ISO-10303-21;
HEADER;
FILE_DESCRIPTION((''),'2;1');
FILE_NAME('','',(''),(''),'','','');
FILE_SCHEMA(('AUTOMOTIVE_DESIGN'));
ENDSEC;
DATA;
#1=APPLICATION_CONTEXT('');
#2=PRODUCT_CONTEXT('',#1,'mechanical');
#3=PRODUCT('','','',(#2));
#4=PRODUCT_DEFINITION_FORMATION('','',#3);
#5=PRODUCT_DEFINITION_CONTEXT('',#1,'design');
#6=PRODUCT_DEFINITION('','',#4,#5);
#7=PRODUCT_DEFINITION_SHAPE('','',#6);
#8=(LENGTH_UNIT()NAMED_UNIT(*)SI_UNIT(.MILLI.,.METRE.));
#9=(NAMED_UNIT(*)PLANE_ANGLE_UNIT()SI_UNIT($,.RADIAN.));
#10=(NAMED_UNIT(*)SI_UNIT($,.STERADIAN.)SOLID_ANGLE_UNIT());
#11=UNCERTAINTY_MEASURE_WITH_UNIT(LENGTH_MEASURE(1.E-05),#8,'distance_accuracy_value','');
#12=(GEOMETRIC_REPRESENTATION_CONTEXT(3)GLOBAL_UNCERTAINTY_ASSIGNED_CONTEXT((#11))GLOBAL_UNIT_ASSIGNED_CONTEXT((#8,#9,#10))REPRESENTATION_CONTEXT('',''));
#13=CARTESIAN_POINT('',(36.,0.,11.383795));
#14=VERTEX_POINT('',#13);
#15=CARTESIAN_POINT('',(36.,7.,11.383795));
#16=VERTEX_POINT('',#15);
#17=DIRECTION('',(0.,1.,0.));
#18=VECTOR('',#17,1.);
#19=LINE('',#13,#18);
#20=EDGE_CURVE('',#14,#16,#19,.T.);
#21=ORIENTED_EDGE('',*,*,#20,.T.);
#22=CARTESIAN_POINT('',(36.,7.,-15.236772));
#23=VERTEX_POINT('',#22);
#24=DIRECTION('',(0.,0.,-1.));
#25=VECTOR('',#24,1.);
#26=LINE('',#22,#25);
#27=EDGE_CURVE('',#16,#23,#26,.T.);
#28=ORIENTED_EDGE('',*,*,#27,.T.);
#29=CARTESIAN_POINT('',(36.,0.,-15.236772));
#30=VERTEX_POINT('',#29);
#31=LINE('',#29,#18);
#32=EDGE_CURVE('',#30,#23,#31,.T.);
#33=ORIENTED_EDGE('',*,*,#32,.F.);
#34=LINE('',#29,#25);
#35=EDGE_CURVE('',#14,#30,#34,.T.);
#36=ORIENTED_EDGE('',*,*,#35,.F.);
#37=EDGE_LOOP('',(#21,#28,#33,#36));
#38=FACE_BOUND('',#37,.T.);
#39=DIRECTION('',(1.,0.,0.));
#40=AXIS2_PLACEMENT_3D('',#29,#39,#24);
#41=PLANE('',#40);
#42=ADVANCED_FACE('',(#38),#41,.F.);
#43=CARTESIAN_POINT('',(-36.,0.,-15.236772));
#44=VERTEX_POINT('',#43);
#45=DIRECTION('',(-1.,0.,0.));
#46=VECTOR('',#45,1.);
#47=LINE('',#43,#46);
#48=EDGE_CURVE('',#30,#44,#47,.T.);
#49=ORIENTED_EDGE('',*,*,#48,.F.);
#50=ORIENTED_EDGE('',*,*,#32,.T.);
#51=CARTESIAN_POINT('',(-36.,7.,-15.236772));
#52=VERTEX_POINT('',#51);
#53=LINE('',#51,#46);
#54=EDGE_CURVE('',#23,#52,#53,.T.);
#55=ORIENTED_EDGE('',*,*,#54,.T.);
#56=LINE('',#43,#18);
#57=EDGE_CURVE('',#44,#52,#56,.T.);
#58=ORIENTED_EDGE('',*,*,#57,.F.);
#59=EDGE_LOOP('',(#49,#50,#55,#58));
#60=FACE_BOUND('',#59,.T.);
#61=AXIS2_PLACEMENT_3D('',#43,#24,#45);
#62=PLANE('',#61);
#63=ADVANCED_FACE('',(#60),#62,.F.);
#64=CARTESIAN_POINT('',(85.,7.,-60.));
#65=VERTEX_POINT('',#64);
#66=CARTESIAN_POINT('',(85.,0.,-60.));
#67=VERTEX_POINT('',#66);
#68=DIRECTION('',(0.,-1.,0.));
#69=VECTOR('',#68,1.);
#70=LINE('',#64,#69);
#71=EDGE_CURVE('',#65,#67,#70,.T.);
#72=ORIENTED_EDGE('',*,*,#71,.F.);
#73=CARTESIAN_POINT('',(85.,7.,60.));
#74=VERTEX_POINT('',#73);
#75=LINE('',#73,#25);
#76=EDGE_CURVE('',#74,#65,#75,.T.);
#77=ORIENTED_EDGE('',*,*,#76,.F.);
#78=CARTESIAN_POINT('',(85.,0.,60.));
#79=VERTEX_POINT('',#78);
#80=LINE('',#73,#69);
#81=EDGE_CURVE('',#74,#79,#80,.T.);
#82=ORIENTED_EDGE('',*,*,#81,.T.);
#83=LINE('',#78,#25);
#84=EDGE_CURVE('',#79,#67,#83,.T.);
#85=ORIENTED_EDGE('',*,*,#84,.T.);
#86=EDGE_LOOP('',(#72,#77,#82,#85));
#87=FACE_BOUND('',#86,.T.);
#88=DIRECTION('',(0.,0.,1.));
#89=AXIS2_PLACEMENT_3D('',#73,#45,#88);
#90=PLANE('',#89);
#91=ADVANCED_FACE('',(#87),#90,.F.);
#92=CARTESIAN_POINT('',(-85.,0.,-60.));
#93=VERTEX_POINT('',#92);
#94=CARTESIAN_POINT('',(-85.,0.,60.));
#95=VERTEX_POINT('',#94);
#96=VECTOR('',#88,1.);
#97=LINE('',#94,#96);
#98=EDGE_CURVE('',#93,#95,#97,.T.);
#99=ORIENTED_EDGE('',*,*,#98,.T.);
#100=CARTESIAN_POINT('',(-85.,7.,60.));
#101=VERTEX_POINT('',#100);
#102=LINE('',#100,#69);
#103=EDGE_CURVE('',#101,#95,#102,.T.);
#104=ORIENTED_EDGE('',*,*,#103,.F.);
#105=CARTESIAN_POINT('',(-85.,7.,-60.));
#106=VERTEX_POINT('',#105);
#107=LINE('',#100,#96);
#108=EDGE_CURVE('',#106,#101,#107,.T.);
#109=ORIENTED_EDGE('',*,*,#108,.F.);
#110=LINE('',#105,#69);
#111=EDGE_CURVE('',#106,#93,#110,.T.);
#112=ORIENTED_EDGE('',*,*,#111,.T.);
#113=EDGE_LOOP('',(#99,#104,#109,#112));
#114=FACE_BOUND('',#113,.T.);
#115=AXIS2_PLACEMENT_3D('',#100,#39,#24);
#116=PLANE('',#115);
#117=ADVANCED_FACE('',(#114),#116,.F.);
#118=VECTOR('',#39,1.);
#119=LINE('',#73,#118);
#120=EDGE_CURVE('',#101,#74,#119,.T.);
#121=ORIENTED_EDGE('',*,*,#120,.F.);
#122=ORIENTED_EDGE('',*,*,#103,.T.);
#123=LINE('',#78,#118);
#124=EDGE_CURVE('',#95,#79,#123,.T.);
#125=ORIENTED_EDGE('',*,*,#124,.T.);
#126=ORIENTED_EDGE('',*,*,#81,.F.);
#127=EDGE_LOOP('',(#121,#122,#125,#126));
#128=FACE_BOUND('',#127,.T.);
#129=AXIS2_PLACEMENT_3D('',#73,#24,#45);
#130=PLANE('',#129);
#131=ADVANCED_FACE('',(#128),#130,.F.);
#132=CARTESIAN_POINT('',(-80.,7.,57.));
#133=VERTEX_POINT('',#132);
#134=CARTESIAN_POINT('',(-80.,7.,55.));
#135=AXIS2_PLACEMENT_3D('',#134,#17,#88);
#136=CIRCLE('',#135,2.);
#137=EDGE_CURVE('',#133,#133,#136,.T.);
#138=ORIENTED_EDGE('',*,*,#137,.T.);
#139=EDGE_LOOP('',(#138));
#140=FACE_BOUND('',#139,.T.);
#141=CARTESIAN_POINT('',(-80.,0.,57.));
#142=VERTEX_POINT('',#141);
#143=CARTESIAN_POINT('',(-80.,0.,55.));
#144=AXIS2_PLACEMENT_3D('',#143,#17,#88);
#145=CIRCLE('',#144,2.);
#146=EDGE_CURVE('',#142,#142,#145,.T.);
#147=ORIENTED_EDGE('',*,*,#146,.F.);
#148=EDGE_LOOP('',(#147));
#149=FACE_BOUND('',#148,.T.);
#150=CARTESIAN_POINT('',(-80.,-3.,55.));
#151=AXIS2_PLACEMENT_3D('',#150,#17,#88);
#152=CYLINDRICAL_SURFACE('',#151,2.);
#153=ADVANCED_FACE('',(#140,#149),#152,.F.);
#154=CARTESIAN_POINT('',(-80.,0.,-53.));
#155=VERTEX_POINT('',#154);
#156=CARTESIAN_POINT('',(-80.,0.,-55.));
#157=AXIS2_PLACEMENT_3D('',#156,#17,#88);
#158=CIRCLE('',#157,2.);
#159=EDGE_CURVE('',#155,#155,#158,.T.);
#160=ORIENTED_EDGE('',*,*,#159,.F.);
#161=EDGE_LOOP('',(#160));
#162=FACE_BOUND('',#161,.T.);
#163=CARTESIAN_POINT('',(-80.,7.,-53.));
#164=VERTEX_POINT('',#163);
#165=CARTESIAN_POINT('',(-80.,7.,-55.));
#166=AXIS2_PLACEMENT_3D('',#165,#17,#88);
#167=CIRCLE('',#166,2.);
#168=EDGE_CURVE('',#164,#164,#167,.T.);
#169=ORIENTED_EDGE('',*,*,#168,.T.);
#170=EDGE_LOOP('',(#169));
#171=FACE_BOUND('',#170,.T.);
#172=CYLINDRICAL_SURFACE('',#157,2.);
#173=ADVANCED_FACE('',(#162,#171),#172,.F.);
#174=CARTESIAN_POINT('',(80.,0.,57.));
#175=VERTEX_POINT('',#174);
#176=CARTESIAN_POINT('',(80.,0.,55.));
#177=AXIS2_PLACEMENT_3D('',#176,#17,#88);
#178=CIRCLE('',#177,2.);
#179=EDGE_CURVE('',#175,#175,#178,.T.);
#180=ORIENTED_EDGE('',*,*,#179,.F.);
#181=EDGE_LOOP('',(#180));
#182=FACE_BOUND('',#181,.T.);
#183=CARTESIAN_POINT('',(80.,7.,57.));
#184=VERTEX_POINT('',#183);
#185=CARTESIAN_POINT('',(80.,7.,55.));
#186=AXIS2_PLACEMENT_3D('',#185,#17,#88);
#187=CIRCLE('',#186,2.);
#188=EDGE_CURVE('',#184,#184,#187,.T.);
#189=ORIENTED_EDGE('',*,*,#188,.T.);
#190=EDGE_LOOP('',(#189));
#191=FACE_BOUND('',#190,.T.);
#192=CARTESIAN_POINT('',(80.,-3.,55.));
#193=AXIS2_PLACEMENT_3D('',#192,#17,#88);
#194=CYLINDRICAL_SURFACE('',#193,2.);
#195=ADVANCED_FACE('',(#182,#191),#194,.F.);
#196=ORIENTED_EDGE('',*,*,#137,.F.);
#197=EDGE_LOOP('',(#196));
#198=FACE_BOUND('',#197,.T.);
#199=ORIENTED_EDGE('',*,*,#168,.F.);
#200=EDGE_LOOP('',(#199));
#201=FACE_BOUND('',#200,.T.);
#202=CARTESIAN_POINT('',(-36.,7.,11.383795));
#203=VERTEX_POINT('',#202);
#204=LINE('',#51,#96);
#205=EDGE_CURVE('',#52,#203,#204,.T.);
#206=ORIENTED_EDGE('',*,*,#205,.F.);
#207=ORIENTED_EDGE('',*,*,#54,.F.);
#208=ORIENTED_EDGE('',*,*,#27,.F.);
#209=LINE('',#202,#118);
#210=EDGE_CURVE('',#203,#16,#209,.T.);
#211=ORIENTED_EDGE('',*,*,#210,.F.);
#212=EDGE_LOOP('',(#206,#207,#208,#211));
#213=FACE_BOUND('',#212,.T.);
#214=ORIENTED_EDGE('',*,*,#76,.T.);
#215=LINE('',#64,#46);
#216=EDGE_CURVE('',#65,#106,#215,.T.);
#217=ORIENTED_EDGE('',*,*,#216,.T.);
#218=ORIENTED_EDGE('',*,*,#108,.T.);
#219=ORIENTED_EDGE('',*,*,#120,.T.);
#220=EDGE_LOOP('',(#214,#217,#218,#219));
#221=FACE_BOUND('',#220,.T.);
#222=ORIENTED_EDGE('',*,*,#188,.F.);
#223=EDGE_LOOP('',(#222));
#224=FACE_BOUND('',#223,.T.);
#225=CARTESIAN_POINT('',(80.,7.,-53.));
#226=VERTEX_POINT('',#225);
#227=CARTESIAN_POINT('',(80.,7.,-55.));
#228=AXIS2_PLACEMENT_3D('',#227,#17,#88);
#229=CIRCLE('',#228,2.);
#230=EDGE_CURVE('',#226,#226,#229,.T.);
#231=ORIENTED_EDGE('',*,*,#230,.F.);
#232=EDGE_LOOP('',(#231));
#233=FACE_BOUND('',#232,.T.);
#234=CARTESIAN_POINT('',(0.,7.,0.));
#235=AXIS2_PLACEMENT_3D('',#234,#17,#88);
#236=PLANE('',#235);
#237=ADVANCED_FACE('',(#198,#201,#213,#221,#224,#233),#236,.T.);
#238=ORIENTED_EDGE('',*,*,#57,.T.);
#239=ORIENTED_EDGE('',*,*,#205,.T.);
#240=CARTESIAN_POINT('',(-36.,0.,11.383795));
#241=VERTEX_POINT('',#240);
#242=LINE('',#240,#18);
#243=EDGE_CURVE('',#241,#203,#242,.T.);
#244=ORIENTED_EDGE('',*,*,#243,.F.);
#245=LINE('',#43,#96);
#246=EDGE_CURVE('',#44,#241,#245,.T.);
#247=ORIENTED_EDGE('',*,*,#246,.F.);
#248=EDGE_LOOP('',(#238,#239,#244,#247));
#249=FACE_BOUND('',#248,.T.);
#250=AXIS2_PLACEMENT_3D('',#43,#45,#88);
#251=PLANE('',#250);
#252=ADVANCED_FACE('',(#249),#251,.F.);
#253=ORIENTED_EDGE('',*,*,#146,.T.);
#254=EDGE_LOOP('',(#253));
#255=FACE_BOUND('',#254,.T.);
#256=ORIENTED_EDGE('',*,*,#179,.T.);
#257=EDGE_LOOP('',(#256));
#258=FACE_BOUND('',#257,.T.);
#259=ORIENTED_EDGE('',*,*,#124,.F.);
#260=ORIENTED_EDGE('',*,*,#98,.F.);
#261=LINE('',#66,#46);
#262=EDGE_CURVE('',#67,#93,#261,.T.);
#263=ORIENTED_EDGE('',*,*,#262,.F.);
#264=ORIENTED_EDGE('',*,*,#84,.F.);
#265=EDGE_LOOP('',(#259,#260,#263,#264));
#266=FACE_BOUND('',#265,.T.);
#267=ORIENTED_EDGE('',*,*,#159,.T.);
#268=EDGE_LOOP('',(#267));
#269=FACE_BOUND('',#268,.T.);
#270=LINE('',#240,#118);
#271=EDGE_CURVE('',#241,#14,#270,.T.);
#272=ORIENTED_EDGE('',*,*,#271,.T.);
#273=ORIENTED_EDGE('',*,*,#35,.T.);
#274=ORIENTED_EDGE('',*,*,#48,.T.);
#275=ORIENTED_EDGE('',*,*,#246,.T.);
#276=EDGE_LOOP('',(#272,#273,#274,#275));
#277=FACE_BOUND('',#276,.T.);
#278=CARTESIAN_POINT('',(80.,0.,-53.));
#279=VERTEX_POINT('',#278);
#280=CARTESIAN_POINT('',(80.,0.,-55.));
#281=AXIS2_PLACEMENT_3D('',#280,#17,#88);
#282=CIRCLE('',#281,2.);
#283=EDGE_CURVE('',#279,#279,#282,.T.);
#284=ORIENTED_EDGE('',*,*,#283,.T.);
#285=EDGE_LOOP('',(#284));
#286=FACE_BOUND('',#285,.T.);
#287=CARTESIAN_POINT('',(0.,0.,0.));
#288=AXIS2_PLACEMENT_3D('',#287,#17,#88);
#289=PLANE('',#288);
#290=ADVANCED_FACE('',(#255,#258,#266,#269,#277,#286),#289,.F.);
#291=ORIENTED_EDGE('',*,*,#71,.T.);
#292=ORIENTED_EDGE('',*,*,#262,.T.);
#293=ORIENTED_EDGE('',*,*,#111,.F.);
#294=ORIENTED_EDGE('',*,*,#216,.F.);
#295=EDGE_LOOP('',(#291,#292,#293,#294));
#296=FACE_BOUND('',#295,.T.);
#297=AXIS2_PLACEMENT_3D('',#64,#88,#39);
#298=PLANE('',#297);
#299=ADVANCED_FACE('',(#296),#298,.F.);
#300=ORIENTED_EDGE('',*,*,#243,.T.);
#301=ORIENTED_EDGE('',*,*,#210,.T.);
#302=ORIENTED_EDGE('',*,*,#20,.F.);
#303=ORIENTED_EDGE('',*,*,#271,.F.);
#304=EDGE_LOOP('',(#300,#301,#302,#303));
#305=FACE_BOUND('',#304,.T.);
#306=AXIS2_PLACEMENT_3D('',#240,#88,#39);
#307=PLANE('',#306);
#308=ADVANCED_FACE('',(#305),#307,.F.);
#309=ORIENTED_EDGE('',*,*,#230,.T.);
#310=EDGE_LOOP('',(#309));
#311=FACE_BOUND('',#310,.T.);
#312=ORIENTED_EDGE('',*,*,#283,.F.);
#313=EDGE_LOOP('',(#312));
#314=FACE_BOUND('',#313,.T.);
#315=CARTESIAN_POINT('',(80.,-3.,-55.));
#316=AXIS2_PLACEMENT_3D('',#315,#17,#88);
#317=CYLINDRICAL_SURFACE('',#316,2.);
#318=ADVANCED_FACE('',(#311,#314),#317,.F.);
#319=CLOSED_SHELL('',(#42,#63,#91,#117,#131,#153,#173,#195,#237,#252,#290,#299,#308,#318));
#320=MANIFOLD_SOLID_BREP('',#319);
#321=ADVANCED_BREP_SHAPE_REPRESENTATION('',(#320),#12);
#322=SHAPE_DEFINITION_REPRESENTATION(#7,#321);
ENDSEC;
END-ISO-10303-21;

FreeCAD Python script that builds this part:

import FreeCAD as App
import Part
import Sketcher

V = App.Vector

doc = App.newDocument("Part")
body = doc.addObject("PartDesign::Body", "Body")

# Sketch on XZ plane
sketch1 = body.newObject("Sketcher::SketchObject", "Sketch")
sketch1.AttachmentSupport = (doc.getObject("XZ_Plane"), [""])
sketch1.MapMode = "FlatFace"
sketch1.addGeometry([
    Part.LineSegment(V(-85, -60, 0), V(-85, 60, 0)),
    Part.LineSegment(V(-85, 60, 0), V(85, 60, 0)),
    Part.LineSegment(V(85, 60, 0), V(85, -60, 0)),
    Part.LineSegment(V(85, -60, 0), V(-85, -60, 0)),
], False)
sketch1.addConstraint([
    Sketcher.Constraint("Coincident", 0, 2, 1, 1),
    Sketcher.Constraint("Coincident", 1, 2, 2, 1),
    Sketcher.Constraint("Coincident", 2, 2, 3, 1),
    Sketcher.Constraint("Coincident", 3, 2, 0, 1),
    Sketcher.Constraint("Vertical", 0),
    Sketcher.Constraint("Horizontal", 1),
    Sketcher.Constraint("Vertical", 2),
    Sketcher.Constraint("Horizontal", 3),
    Sketcher.Constraint("Symmetric", 0, 2, 2, 2, -1, 1),
    Sketcher.Constraint("DistanceX", 1, 1, 1, 2, 170.0),
    Sketcher.Constraint("DistanceY", 0, 1, 0, 2, 120.0),
])
pad1 = body.newObject("PartDesign::Pad", "Pad")
pad1.Profile = sketch1
pad1.Length = 7
pad1.Reversed = True

# Sketch on XZ plane
sketch2 = body.newObject("Sketcher::SketchObject", "Sketch001")
sketch2.AttachmentSupport = (doc.getObject("XZ_Plane"), [""])
sketch2.MapMode = "FlatFace"
sketch2.AttachmentOffset = App.Placement(V(0, 0, -7), App.Rotation())
sketch2.addGeometry([
    Part.LineSegment(V(-36, -15, 0), V(-36, 11, 0)),
    Part.LineSegment(V(-36, 11, 0), V(36, 11, 0)),
    Part.LineSegment(V(36, 11, 0), V(36, -15, 0)),
    Part.LineSegment(V(36, -15, 0), V(-36, -15, 0)),
], False)
sketch2.addConstraint([
    Sketcher.Constraint("Coincident", 0, 2, 1, 1),
    Sketcher.Constraint("Coincident", 1, 2, 2, 1),
    Sketcher.Constraint("Coincident", 2, 2, 3, 1),
    Sketcher.Constraint("Coincident", 3, 2, 0, 1),
    Sketcher.Constraint("Vertical", 0),
    Sketcher.Constraint("Horizontal", 1),
    Sketcher.Constraint("Vertical", 2),
    Sketcher.Constraint("Horizontal", 3),
    Sketcher.Constraint("DistanceX", 1, 1, 1, 2, 72.0),
    Sketcher.Constraint("DistanceX", 0, 2, -1, 1, 36.0),
    Sketcher.Constraint("DistanceY", 0, 1, 0, 2, 26.620567),
    Sketcher.Constraint("DistanceY", -1, 1, 0, 2, 11.383795),
])
pocket1 = body.newObject("PartDesign::Pocket", "Pocket")
pocket1.Profile = sketch2
pocket1.Length = 7
pocket1.Reversed = True

# Sketch on XZ plane
sketch3 = body.newObject("Sketcher::SketchObject", "Sketch002")
sketch3.AttachmentSupport = (doc.getObject("XZ_Plane"), [""])
sketch3.MapMode = "FlatFace"
sketch3.AttachmentOffset = App.Placement(V(0, 0, -7), App.Rotation())
sketch3.addGeometry(Part.Circle(V(-80, -55, 0), V(0, 0, 1), 2), False)
sketch3.addConstraint([
    Sketcher.Constraint("Diameter", 0, 4.0),
    Sketcher.Constraint("DistanceX", 0, 3, -1, 1, 80.0),
    Sketcher.Constraint("DistanceY", 0, 3, -1, 1, 55.0),
])
pocket2 = body.newObject("PartDesign::Pocket", "Pocket001")
pocket2.Profile = sketch3
pocket2.Length = 7
pocket2.Reversed = True

# Sketch on XZ plane
sketch4 = body.newObject("Sketcher::SketchObject", "Sketch003")
sketch4.AttachmentSupport = (doc.getObject("XZ_Plane"), [""])
sketch4.MapMode = "FlatFace"
sketch4.AttachmentOffset = App.Placement(V(0, 0, -7), App.Rotation())
sketch4.addGeometry(Part.Circle(V(-80, 55, 0), V(0, 0, 1), 2), False)
sketch4.addConstraint([
    Sketcher.Constraint("Diameter", 0, 4.0),
    Sketcher.Constraint("DistanceX", 0, 3, -1, 1, 80.0),
    Sketcher.Constraint("DistanceY", -1, 1, 0, 3, 55.0),
])
pocket3 = body.newObject("PartDesign::Pocket", "Pocket002")
pocket3.Profile = sketch4
pocket3.Length = 10
pocket3.Reversed = True

# Sketch on XZ plane
sketch5 = body.newObject("Sketcher::SketchObject", "Sketch004")
sketch5.AttachmentSupport = (doc.getObject("XZ_Plane"), [""])
sketch5.MapMode = "FlatFace"
sketch5.AttachmentOffset = App.Placement(V(0, 0, -7), App.Rotation())
sketch5.addGeometry(Part.Circle(V(80, -55, 0), V(0, 0, 1), 2), False)
sketch5.addConstraint([
    Sketcher.Constraint("Diameter", 0, 4.0),
    Sketcher.Constraint("DistanceX", -1, 1, 0, 3, 80.0),
    Sketcher.Constraint("DistanceY", 0, 3, -1, 1, 55.0),
])
pocket4 = body.newObject("PartDesign::Pocket", "Pocket003")
pocket4.Profile = sketch5
pocket4.Length = 10
pocket4.Reversed = True

# Sketch on XZ plane
sketch6 = body.newObject("Sketcher::SketchObject", "Sketch005")
sketch6.AttachmentSupport = (doc.getObject("XZ_Plane"), [""])
sketch6.MapMode = "FlatFace"
sketch6.AttachmentOffset = App.Placement(V(0, 0, -7), App.Rotation())
sketch6.addGeometry(Part.Circle(V(80, 55, 0), V(0, 0, 1), 2), False)
sketch6.addConstraint([
    Sketcher.Constraint("Diameter", 0, 4.0),
    Sketcher.Constraint("DistanceX", -1, 1, 0, 3, 80.0),
    Sketcher.Constraint("DistanceY", -1, 1, 0, 3, 55.0),
])
pocket5 = body.newObject("PartDesign::Pocket", "Pocket004")
pocket5.Profile = sketch6
pocket5.Length = 10
pocket5.Reversed = True

doc.recompute()
